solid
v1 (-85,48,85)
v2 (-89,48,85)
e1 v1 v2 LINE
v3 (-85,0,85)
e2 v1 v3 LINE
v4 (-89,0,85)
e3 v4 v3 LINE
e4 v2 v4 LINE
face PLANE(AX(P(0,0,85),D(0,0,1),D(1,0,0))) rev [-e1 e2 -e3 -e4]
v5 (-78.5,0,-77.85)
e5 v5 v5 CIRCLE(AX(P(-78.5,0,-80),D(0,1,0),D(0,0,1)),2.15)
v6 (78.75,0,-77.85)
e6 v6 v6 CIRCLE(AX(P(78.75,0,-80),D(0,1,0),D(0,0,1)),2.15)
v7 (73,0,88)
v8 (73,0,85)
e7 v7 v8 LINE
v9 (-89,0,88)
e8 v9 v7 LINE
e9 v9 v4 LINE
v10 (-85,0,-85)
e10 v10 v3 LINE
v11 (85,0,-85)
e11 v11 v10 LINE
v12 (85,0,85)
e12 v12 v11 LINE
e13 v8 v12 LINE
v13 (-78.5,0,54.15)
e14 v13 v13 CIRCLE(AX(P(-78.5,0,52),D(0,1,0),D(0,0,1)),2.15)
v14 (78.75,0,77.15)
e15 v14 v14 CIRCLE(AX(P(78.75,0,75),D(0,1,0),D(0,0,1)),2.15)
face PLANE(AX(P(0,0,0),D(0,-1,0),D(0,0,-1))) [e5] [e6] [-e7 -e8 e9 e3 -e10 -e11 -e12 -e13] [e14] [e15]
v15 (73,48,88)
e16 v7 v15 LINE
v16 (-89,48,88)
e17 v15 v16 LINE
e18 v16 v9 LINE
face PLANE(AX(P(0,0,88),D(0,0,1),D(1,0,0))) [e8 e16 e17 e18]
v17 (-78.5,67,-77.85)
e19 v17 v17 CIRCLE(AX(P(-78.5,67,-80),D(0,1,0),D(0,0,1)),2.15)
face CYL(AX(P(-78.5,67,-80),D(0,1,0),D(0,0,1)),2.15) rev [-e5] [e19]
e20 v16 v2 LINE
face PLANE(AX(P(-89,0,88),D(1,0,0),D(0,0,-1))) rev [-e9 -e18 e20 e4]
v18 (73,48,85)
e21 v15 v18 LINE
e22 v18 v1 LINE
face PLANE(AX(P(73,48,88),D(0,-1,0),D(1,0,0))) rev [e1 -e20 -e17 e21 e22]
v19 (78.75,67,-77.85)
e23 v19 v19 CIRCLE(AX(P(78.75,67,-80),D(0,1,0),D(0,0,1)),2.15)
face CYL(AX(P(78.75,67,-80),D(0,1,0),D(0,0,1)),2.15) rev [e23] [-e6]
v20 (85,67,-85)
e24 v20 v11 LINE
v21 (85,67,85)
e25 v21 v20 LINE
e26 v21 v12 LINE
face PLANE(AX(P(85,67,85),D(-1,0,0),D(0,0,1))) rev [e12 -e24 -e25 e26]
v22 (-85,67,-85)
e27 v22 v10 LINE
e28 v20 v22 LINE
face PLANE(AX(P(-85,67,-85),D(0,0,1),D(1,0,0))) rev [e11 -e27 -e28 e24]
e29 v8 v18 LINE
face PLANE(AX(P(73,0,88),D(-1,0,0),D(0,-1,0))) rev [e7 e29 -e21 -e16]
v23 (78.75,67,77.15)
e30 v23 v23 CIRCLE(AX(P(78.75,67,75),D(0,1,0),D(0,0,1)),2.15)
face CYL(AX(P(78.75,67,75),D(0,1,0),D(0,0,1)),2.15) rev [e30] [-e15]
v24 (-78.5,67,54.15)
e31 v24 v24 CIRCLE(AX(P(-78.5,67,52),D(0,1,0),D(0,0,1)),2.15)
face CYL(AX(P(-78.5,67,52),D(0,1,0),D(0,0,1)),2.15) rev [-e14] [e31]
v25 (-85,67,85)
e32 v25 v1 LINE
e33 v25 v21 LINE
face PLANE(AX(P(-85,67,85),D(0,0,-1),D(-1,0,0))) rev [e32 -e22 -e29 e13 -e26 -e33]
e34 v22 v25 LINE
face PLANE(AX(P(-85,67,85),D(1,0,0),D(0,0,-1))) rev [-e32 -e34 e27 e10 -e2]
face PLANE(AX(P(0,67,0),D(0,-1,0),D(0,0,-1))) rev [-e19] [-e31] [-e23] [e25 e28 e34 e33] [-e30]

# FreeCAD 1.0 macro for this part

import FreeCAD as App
import Part
import Sketcher

V = App.Vector
Q = App.Units.Quantity

doc = App.newDocument("Part")
body = doc.addObject("PartDesign::Body", "Body")

# Sketch on XZ plane
sketch1 = body.newObject("Sketcher::SketchObject", "Sketch")
sketch1.AttachmentSupport = (doc.getObject("XZ_Plane"), [""])
sketch1.MapMode = "FlatFace"
sketch1.addGeometry([
    Part.LineSegment(V(-85, -85, 0), V(-85, 85, 0)),
    Part.LineSegment(V(-85, 85, 0), V(85, 85, 0)),
    Part.LineSegment(V(85, 85, 0), V(85, -85, 0)),
    Part.LineSegment(V(85, -85, 0), V(-85, -85, 0)),
], False)
sketch1.addConstraint([
    Sketcher.Constraint("Coincident", 0, 2, 1, 1),
    Sketcher.Constraint("Coincident", 1, 2, 2, 1),
    Sketcher.Constraint("Coincident", 2, 2, 3, 1),
    Sketcher.Constraint("Coincident", 3, 2, 0, 1),
    Sketcher.Constraint("Vertical", 0),
    Sketcher.Constraint("Horizontal", 1),
    Sketcher.Constraint("Vertical", 2),
    Sketcher.Constraint("Horizontal", 3),
    Sketcher.Constraint("Symmetric", 0, 2, 2, 2, -1, 1),
    Sketcher.Constraint("Equal", 3, 0),
    Sketcher.Constraint("DistanceX", 1, 1, 1, 2, Q("170 mm")),
])
pad1 = body.newObject("PartDesign::Pad", "Pad")
pad1.Profile = sketch1
pad1.Length = 67
pad1.Reversed = True

# Sketch on XY plane
sketch2 = body.newObject("Sketcher::SketchObject", "Sketch001")
sketch2.AttachmentSupport = (doc.getObject("XY_Plane"), [""])
sketch2.MapMode = "FlatFace"
sketch2.AttachmentOffset = App.Placement(V(0, 0, 85), App.Rotation())
sketch2.addGeometry([
    Part.LineSegment(V(-89, 48, 0), V(-89, 0, 0)),
    Part.LineSegment(V(-89, 0, 0), V(73, 0, 0)),
    Part.LineSegment(V(73, 0, 0), V(73, 48, 0)),
    Part.LineSegment(V(73, 48, 0), V(-89, 48, 0)),
], False)
sketch2.addConstraint([
    Sketcher.Constraint("Coincident", 0, 2, 1, 1),
    Sketcher.Constraint("Coincident", 1, 2, 2, 1),
    Sketcher.Constraint("Coincident", 2, 2, 3, 1),
    Sketcher.Constraint("Coincident", 3, 2, 0, 1),
    Sketcher.Constraint("Vertical", 0),
    Sketcher.Constraint("Horizontal", 1),
    Sketcher.Constraint("Vertical", 2),
    Sketcher.Constraint("Horizontal", 3),
    Sketcher.Constraint("PointOnObject", 0, 2, -1),
    Sketcher.Constraint("DistanceX", 1, 1, 1, 2, Q("162 mm")),
    Sketcher.Constraint("DistanceY", 0, 2, 0, 1, Q("48 mm")),
    Sketcher.Constraint("DistanceX", 0, 2, -1, 1, Q("89 mm")),
])
pad2 = body.newObject("PartDesign::Pad", "Pad001")
pad2.Profile = sketch2
pad2.Length = 3

# Sketch on XZ plane
sketch3 = body.newObject("Sketcher::SketchObject", "Sketch002")
sketch3.AttachmentSupport = (doc.getObject("XZ_Plane"), [""])
sketch3.MapMode = "FlatFace"
sketch3.AttachmentOffset = App.Placement(V(0, 0, -67), App.Rotation())
sketch3.addGeometry([
    Part.Circle(V(-78.5, -80, 0), V(0, 0, 1), 2.1),
    Part.Circle(V(-78.5, 52, 0), V(0, 0, 1), 2.1),
    Part.Circle(V(78.8, 75, 0), V(0, 0, 1), 2.1),
    Part.Circle(V(78.8, -80, 0), V(0, 0, 1), 2.1),
], False)
sketch3.addConstraint([
    Sketcher.Constraint("Equal", 0, 1),
    Sketcher.Constraint("Equal", 1, 2),
    Sketcher.Constraint("Equal", 2, 3),
    Sketcher.Constraint("Horizontal", 0, 3, 3, 3),
    Sketcher.Constraint("Vertical", 0, 3, 1, 3),
    Sketcher.Constraint("Vertical", 2, 3, 3, 3),
    Sketcher.Constraint("Diameter", 0, Q("4.3 mm")),
    Sketcher.Constraint("DistanceY", 0, 3, -1, 1, Q("80 mm")),
    Sketcher.Constraint("DistanceY", -1, 1, 1, 3, Q("52 mm")),
    Sketcher.Constraint("DistanceY", -1, 1, 2, 3, Q("75 mm")),
    Sketcher.Constraint("DistanceX", 0, 3, -1, 1, Q("78.5 mm")),
    Sketcher.Constraint("DistanceX", -1, 1, 2, 3, Q("78.75 mm")),
])
doc.recompute()
hole = body.newObject("PartDesign::Hole", "Hole")
hole.Profile = sketch3
hole.ThreadType = "None"
hole.Diameter = 4.3
hole.DepthType = "ThroughAll"
hole.Reversed = True

doc.recompute()
